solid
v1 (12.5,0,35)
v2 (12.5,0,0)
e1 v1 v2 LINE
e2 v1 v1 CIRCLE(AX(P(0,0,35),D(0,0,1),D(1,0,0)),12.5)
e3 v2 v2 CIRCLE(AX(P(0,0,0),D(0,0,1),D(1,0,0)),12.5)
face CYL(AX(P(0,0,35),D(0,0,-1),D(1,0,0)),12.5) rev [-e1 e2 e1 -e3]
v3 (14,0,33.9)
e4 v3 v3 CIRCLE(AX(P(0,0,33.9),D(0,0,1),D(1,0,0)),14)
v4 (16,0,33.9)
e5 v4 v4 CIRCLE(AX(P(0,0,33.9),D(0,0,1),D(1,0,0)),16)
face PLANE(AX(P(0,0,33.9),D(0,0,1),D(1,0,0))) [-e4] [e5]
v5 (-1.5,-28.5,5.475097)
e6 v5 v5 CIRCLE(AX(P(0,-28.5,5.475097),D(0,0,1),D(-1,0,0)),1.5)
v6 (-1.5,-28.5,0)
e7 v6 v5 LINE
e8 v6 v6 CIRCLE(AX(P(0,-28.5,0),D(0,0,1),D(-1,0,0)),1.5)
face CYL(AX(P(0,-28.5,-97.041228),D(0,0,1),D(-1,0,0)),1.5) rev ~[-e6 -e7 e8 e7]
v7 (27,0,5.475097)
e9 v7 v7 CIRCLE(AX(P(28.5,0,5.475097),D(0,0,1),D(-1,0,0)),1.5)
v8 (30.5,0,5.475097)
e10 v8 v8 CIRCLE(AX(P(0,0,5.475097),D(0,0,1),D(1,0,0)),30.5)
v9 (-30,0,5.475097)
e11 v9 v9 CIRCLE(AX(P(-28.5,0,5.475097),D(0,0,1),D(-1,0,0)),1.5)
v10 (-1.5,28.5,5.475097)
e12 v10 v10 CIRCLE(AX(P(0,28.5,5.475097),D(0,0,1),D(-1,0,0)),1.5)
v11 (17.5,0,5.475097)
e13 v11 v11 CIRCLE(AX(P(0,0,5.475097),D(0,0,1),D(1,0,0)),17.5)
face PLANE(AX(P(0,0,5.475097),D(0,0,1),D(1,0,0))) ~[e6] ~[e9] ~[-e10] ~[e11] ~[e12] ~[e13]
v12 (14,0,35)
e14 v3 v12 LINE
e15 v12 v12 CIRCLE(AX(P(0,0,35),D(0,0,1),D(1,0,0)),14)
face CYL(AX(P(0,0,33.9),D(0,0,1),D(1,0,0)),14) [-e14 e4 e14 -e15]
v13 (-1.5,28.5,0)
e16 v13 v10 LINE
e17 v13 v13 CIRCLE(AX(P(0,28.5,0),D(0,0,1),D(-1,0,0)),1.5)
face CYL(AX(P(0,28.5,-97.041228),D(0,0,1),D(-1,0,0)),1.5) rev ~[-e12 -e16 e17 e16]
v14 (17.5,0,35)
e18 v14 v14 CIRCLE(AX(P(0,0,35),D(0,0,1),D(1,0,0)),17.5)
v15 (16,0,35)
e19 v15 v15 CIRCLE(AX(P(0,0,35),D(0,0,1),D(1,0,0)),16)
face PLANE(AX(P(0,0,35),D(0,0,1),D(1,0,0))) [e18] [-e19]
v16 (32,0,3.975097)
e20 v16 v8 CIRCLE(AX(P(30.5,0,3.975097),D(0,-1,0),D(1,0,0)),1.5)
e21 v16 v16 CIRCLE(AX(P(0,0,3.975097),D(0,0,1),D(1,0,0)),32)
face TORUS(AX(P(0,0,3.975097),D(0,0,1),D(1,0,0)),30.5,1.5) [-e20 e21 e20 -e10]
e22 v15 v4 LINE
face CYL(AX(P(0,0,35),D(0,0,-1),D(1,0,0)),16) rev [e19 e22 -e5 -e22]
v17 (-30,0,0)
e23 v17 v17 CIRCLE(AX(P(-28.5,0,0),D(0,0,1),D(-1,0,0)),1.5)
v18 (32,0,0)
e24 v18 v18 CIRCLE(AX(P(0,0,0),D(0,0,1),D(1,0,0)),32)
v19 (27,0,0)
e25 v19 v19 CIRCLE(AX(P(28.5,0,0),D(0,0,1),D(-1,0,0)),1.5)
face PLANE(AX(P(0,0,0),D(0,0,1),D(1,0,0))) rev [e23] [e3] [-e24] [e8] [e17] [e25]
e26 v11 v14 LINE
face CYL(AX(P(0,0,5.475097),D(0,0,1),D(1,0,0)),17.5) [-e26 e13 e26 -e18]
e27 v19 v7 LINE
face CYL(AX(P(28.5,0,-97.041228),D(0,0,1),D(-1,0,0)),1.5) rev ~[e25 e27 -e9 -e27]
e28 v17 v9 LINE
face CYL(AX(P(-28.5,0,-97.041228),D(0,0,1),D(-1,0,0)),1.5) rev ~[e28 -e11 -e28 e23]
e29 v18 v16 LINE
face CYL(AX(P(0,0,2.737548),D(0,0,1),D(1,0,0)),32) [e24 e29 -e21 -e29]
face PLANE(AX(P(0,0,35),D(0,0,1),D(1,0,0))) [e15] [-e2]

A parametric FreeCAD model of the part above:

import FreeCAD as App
import Part
import Sketcher
from FreeCAD import Vector


def edges_at(feature, points):
    """Names of the edges that pass closest to the given points."""
    edges = feature.Shape.Edges
    near = lambda p: min(range(len(edges)), key=lambda i: edges[i].distToShape(Part.Vertex(*p))[0])
    return sorted({f"Edge{near(p) + 1}" for p in points})


def add_polygon(sketch, points):
    """Adds a closed chain of lines whose ends are joined by coincident constraints."""
    first, n = sketch.GeometryCount, len(points)
    for a, b in zip(points, points[1:] + points[:1]):
        sketch.addGeometry(Part.LineSegment(App.Vector(*a, 0), App.Vector(*b, 0)), False)
    for i in range(n):
        sketch.addConstraint(Sketcher.Constraint("Coincident", first + i, 2, first + (i + 1) % n, 1))

doc = App.newDocument("Part")
body = doc.addObject("PartDesign::Body", "Body")

sketch1 = doc.addObject("Sketcher::SketchObject", "Sketch")
body.addObject(sketch1)
sketch1.AttachmentSupport = (doc.XZ_Plane, [""])
sketch1.MapMode = "FlatFace"
add_polygon(sketch1, [(32, 0), (32, 5.5), (17.5, 5.5), (17.5, 35), (16, 35), (16, 33.9), (14, 33.9), (14, 35), (12.5, 35), (12.5, 0)])
sketch1.addConstraint([
    Sketcher.Constraint("Vertical", 0),
    Sketcher.Constraint("Horizontal", 1),
    Sketcher.Constraint("Vertical", 2),
    Sketcher.Constraint("Horizontal", 3),
    Sketcher.Constraint("Vertical", 4),
    Sketcher.Constraint("Horizontal", 5),
    Sketcher.Constraint("Vertical", 6),
    Sketcher.Constraint("Horizontal", 7),
    Sketcher.Constraint("Vertical", 8),
    Sketcher.Constraint("Horizontal", 9),
    Sketcher.Constraint("PointOnObject", 8, 2, -1),
    Sketcher.Constraint("Horizontal", 3, 2, 6, 2),
    Sketcher.Constraint("Equal", 3, 7),
    Sketcher.Constraint("DistanceX", 5, 2, 5, 1, 2.0),
    Sketcher.Constraint("DistanceY", 8, 2, 8, 1, 35.0),
    Sketcher.Constraint("DistanceX", 1, 2, 1, 1, 14.5),
    Sketcher.Constraint("DistanceX", 3, 2, 3, 1, 1.5),
    Sketcher.Constraint("DistanceY", 4, 2, 4, 1, 1.1),
    Sketcher.Constraint("DistanceX", -1, 1, 0, 2, 32.0),
    Sketcher.Constraint("DistanceY", 0, 1, 0, 2, 5.475097),
])
revolution = doc.addObject("PartDesign::Revolution", "Revolution")
body.addObject(revolution)
revolution.Profile = sketch1
revolution.ReferenceAxis = (sketch1, ["V_Axis"])
revolution.Angle = 360

sketch2 = doc.addObject("Sketcher::SketchObject", "Sketch001")
body.addObject(sketch2)
sketch2.AttachmentSupport = (doc.XY_Plane, [""])
sketch2.MapMode = "FlatFace"
sketch2.addGeometry([
    Part.Circle(Vector(0, 28.5, 0), Vector(0, 0, 1), 1.5),
    Part.Circle(Vector(28.5, 0, 0), Vector(0, 0, 1), 1.5),
    Part.Circle(Vector(0, -28.5, 0), Vector(0, 0, 1), 1.5),
    Part.Circle(Vector(-28.5, 0, 0), Vector(0, 0, 1), 1.5),
], False)
sketch2.addConstraint([
    Sketcher.Constraint("Equal", 0, 1),
    Sketcher.Constraint("Equal", 1, 2),
    Sketcher.Constraint("Equal", 2, 3),
    Sketcher.Constraint("Symmetric", 0, 3, 2, 3, -1, 1),
    Sketcher.Constraint("Symmetric", 1, 3, 3, 3, -1, 1),
    Sketcher.Constraint("PointOnObject", 0, 3, -2),
    Sketcher.Constraint("PointOnObject", 1, 3, -1),
    Sketcher.Constraint("Diameter", 0, 3.0),
    Sketcher.Constraint("DistanceY", 2, 3, 0, 3, 57.0),
    Sketcher.Constraint("DistanceX", 3, 3, 1, 3, 57.0),
])
doc.recompute()
hole = doc.addObject("PartDesign::Hole", "Hole")
body.addObject(hole)
hole.Profile = sketch2
hole.ThreadType = "None"
hole.Diameter = 3
hole.DepthType = "ThroughAll"
hole.Reversed = True
doc.recompute()

fillet = doc.addObject("PartDesign::Fillet", "Fillet")
body.addObject(fillet)
fillet.Base = (hole, edges_at(hole, [(-32, 0, 5.475)]))
fillet.Radius = 1.5

doc.recompute()
